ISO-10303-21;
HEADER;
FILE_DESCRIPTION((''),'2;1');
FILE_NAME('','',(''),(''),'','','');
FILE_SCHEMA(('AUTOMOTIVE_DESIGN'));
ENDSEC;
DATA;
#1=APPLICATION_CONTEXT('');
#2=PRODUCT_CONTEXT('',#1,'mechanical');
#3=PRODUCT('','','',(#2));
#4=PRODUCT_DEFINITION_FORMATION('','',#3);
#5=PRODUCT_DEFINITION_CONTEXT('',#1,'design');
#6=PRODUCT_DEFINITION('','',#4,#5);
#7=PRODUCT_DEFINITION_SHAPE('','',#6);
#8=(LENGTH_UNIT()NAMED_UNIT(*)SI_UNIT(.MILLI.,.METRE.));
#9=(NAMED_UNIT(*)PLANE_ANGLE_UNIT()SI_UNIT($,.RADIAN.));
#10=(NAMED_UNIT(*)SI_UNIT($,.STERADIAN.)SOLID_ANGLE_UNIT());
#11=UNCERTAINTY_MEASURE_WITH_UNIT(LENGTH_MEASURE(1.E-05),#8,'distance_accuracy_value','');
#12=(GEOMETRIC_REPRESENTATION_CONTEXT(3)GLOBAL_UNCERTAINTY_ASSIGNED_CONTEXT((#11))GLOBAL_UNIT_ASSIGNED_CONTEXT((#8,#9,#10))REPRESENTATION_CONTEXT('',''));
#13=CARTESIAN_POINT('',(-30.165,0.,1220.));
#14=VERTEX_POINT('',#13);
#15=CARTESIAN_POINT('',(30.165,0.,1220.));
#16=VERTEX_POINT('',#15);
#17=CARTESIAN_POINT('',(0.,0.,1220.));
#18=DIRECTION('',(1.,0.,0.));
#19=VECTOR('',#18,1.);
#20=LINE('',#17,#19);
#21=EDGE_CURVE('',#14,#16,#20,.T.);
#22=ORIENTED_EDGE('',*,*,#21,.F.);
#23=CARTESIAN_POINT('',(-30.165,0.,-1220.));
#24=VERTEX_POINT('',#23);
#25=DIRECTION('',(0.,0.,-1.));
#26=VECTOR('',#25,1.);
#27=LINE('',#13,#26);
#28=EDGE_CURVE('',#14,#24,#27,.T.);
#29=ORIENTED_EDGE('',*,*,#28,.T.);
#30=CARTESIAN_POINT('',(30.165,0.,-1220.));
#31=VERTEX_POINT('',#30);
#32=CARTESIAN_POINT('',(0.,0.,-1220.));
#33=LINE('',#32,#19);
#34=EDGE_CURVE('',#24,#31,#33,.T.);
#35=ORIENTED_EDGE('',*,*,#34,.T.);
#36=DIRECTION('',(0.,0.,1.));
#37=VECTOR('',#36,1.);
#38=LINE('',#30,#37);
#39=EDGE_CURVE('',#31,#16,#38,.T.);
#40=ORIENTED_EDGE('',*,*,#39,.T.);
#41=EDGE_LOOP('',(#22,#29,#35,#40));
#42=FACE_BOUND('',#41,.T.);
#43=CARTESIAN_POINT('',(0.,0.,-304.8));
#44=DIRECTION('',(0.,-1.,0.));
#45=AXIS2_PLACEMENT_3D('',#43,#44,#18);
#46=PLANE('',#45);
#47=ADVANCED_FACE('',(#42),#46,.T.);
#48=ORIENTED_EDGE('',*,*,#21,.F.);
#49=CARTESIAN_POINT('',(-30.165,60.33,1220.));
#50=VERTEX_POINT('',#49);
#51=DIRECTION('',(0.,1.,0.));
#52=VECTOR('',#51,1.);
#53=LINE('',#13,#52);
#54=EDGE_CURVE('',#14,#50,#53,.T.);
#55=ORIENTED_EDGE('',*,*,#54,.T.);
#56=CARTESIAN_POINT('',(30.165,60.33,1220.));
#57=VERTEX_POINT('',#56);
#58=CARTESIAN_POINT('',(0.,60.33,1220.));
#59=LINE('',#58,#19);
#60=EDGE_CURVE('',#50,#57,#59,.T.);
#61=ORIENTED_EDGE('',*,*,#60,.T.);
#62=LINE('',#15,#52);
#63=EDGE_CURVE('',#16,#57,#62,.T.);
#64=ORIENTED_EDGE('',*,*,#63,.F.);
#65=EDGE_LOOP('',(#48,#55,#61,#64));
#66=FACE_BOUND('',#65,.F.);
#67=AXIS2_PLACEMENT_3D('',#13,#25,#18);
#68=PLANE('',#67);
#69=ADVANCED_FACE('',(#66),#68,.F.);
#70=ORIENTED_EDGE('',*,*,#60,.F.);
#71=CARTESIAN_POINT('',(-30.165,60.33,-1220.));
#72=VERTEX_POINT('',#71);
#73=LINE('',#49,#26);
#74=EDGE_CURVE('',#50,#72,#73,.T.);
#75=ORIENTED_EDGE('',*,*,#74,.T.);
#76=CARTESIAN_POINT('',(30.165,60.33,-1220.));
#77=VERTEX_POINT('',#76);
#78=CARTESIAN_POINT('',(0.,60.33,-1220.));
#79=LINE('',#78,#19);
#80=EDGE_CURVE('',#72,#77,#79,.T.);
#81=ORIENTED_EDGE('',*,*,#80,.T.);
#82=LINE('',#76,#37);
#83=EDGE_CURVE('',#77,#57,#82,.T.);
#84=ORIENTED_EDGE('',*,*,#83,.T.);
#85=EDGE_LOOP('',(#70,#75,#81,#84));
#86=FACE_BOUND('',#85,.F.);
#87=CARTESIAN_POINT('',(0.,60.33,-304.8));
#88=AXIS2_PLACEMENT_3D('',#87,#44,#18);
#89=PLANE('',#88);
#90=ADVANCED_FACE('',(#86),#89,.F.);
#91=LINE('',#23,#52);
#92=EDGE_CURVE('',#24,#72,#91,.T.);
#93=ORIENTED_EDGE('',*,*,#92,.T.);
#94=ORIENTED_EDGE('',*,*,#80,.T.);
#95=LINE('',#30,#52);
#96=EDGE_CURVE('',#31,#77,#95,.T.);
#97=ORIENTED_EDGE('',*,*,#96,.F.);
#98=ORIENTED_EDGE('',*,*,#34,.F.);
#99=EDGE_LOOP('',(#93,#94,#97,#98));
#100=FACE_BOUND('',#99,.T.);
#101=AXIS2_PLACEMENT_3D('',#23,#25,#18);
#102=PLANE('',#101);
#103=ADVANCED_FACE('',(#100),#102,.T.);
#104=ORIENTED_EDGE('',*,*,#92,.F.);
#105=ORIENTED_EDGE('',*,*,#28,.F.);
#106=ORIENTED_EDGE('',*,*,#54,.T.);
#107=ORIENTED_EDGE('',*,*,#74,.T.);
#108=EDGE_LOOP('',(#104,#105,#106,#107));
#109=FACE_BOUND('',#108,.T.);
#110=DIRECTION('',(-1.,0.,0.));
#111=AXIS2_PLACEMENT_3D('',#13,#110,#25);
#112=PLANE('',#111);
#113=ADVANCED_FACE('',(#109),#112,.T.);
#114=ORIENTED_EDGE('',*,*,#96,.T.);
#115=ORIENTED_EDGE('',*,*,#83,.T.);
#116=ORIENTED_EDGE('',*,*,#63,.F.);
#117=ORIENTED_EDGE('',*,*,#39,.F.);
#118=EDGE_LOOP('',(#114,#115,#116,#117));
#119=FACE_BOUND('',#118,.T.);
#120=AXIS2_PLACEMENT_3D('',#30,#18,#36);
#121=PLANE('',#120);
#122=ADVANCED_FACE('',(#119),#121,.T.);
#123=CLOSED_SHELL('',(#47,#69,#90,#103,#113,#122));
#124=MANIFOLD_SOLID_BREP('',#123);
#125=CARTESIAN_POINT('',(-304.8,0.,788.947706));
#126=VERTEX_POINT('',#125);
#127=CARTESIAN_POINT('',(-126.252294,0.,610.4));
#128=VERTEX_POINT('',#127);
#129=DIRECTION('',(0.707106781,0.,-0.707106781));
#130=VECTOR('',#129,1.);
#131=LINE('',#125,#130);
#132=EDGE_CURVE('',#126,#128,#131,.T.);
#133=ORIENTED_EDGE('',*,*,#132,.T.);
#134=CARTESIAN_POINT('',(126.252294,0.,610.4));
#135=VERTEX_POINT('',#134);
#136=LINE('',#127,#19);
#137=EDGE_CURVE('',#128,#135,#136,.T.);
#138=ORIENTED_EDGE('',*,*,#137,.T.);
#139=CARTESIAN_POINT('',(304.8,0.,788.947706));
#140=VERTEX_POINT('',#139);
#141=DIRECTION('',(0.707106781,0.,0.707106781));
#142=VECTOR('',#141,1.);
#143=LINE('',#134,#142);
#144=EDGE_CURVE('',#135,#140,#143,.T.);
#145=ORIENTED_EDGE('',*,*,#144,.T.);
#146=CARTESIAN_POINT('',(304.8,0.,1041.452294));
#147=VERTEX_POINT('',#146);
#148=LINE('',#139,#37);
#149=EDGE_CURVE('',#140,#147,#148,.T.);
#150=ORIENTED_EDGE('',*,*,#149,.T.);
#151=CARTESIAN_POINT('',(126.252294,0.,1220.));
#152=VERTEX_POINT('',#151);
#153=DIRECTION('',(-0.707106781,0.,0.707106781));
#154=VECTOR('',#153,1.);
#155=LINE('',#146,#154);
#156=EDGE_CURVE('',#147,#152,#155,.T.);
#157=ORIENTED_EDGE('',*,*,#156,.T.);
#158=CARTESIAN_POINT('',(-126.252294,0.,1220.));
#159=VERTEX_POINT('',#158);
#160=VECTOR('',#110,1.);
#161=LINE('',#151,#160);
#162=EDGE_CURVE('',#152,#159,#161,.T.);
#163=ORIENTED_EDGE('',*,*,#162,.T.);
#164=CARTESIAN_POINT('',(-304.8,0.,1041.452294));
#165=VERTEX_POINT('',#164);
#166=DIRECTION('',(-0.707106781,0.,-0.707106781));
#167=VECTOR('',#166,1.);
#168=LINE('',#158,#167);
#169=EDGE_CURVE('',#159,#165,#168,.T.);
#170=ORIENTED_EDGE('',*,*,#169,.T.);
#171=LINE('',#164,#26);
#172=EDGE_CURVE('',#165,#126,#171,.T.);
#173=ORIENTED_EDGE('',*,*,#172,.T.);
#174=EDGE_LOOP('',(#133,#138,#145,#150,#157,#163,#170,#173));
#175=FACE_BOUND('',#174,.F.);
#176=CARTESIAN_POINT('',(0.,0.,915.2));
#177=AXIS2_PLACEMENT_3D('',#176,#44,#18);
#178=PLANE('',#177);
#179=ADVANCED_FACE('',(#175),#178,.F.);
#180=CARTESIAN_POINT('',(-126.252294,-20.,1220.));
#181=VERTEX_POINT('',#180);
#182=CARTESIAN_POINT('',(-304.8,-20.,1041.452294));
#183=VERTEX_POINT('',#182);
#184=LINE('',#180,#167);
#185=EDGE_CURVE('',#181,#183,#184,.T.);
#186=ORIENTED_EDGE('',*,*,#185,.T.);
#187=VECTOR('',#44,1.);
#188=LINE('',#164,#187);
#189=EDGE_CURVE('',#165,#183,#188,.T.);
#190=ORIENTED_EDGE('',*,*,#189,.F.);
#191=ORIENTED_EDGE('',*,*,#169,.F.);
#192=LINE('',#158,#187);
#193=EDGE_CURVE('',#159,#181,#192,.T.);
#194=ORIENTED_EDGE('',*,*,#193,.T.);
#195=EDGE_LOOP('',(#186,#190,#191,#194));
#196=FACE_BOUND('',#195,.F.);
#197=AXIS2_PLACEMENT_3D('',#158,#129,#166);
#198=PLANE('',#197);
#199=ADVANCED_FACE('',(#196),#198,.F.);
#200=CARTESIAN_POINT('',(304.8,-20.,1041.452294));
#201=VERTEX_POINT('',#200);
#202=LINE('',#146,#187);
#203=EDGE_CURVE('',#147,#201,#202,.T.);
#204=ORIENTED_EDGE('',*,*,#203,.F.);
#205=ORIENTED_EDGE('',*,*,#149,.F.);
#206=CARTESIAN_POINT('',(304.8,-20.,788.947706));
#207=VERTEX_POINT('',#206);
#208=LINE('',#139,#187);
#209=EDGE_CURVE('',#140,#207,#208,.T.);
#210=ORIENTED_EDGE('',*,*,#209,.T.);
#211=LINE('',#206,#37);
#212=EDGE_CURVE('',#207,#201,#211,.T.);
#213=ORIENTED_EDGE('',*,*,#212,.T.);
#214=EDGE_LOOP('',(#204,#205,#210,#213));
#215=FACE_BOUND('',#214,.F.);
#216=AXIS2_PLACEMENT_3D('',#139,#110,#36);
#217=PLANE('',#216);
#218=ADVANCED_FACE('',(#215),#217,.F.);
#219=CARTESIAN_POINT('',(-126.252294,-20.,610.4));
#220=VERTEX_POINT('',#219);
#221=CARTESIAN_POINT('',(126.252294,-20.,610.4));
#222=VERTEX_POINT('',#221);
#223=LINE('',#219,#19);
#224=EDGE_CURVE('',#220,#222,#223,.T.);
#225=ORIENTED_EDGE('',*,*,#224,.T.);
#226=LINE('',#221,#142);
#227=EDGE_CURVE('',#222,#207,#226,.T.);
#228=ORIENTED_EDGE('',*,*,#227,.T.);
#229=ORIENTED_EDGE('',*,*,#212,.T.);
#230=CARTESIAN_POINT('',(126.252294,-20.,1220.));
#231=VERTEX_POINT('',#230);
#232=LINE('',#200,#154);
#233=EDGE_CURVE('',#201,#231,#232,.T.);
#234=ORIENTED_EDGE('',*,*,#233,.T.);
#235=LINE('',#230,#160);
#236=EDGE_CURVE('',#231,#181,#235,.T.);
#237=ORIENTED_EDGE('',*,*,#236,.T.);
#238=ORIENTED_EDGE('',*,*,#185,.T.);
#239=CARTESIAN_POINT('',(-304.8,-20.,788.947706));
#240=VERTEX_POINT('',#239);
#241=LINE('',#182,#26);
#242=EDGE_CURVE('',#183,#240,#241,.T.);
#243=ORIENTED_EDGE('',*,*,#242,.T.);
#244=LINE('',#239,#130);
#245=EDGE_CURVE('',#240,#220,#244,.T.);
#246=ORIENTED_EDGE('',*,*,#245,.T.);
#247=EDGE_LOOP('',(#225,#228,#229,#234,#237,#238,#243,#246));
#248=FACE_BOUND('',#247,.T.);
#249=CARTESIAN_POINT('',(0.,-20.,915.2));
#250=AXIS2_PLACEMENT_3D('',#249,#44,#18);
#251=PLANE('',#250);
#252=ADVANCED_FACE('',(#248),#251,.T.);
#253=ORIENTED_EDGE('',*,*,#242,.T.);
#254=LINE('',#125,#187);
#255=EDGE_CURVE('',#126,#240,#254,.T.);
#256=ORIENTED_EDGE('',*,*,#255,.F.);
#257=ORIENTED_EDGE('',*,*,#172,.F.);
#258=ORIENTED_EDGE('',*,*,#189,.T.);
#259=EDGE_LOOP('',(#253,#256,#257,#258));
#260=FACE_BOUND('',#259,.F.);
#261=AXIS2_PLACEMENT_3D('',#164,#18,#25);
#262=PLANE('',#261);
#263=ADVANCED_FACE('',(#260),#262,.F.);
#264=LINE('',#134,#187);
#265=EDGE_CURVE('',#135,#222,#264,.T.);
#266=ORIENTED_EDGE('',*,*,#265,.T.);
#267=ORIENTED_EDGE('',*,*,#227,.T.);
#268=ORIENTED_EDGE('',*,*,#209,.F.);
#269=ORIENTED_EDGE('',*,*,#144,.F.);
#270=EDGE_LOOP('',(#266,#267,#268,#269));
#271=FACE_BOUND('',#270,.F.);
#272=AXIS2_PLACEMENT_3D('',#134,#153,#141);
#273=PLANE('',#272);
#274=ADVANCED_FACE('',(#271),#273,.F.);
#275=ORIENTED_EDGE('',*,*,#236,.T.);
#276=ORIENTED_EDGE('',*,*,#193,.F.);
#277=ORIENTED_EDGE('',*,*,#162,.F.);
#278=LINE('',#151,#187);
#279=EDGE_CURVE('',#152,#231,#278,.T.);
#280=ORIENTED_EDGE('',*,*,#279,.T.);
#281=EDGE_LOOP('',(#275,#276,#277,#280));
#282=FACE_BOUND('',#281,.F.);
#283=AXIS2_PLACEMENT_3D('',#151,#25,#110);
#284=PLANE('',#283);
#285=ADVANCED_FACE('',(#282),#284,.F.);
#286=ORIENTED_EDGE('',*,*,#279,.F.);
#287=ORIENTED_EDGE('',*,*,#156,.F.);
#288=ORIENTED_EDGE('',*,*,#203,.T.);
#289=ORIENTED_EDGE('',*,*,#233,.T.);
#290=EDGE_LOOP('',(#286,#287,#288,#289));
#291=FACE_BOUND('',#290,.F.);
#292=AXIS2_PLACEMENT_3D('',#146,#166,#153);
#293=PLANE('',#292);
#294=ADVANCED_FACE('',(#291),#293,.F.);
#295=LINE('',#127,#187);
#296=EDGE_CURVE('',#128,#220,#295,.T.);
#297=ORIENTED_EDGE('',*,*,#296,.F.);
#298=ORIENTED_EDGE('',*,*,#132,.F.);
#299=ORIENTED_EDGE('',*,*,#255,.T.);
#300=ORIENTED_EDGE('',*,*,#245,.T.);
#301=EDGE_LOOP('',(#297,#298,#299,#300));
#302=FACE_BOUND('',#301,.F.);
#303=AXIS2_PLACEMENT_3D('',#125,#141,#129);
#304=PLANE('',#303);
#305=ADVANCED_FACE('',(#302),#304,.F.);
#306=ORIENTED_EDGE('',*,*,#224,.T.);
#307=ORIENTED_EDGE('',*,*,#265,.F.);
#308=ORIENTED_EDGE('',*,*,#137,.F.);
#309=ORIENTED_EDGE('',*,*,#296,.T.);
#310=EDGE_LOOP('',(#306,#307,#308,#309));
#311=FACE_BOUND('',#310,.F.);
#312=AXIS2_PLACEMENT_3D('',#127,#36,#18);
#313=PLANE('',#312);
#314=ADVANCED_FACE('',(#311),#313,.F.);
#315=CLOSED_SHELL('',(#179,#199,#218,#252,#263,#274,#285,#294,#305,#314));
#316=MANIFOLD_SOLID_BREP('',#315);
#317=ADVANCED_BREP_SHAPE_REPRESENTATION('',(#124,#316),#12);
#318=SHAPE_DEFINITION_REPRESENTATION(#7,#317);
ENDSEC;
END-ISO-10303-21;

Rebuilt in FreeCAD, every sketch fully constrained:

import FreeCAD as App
import Part
import Sketcher
from FreeCAD import Vector
Q = App.Units.Quantity


def add_polygon(sketch, points):
    """Adds a closed chain of lines whose ends are joined by coincident constraints."""
    first, n = sketch.GeometryCount, len(points)
    for a, b in zip(points, points[1:] + points[:1]):
        sketch.addGeometry(Part.LineSegment(App.Vector(*a, 0), App.Vector(*b, 0)), False)
    for i in range(n):
        sketch.addConstraint(Sketcher.Constraint("Coincident", first + i, 2, first + (i + 1) % n, 1))

doc = App.newDocument("Part")
body = doc.addObject("PartDesign::Body", "Body")

sketch1 = body.newObject("Sketcher::SketchObject", "Sketch")
sketch1.AttachmentSupport = (doc.getObject("XZ_Plane"), [""])
sketch1.MapMode = "FlatFace"
add_polygon(sketch1, [(-126.252294, 1220), (-304.8, 1041.452294), (-304.8, 788.947706), (-126.252294, 610.4), (126.252294, 610.4), (304.8, 788.947706), (304.8, 1041.452294), (126.252294, 1220)])
sketch1.addConstraint([
    Sketcher.Constraint("Vertical", 1),
    Sketcher.Constraint("Horizontal", 3),
    Sketcher.Constraint("Vertical", 5),
    Sketcher.Constraint("Horizontal", 7),
    Sketcher.Constraint("Symmetric", 1, 2, 4, 2, -2),
    Sketcher.Constraint("Perpendicular", 0, 2),
    Sketcher.Constraint("Perpendicular", 2, 4),
    Sketcher.Constraint("Perpendicular", 4, 6),
    Sketcher.Constraint("Horizontal", 0, 2, 5, 2),
    Sketcher.Constraint("Vertical", 3, 2, 6, 2),
    Sketcher.Constraint("Vertical", 2, 2, 7, 2),
    Sketcher.Constraint("Equal", 7, 1),
    Sketcher.Constraint("DistanceY", -1, 1, 6, 2, Q("1220 mm")),
    Sketcher.Constraint("DistanceX", 0, 2, -1, 1, Q("304.8 mm")),
    Sketcher.Constraint("DistanceX", 3, 1, 3, 2, Q("252.504588 mm")),
])
pad1 = body.newObject("PartDesign::Pad", "Pad")
pad1.Profile = sketch1
pad1.Length = 20
body2 = doc.addObject("PartDesign::Body", "Body001")

sketch2 = body2.newObject("Sketcher::SketchObject", "Sketch001")
sketch2.AttachmentSupport = (doc.getObject("XZ_Plane001"), [""])
sketch2.MapMode = "FlatFace"
add_polygon(sketch2, [(-30.165, -1220), (30.165, -1220), (30.165, 1220), (-30.165, 1220)])
sketch2.addConstraint([
    Sketcher.Constraint("Horizontal", 0),
    Sketcher.Constraint("Vertical", 1),
    Sketcher.Constraint("Horizontal", 2),
    Sketcher.Constraint("Vertical", 3),
    Sketcher.Constraint("Symmetric", 0, 2, 2, 2, -1, 1),
    Sketcher.Constraint("DistanceY", 1, 1, 1, 2, Q("2440 mm")),
    Sketcher.Constraint("DistanceX", 0, 1, 0, 2, Q("60.33 mm")),
])
pad2 = body2.newObject("PartDesign::Pad", "Pad001")
pad2.Profile = sketch2
pad2.Length = 60.33
pad2.Reversed = True

doc.recompute()
